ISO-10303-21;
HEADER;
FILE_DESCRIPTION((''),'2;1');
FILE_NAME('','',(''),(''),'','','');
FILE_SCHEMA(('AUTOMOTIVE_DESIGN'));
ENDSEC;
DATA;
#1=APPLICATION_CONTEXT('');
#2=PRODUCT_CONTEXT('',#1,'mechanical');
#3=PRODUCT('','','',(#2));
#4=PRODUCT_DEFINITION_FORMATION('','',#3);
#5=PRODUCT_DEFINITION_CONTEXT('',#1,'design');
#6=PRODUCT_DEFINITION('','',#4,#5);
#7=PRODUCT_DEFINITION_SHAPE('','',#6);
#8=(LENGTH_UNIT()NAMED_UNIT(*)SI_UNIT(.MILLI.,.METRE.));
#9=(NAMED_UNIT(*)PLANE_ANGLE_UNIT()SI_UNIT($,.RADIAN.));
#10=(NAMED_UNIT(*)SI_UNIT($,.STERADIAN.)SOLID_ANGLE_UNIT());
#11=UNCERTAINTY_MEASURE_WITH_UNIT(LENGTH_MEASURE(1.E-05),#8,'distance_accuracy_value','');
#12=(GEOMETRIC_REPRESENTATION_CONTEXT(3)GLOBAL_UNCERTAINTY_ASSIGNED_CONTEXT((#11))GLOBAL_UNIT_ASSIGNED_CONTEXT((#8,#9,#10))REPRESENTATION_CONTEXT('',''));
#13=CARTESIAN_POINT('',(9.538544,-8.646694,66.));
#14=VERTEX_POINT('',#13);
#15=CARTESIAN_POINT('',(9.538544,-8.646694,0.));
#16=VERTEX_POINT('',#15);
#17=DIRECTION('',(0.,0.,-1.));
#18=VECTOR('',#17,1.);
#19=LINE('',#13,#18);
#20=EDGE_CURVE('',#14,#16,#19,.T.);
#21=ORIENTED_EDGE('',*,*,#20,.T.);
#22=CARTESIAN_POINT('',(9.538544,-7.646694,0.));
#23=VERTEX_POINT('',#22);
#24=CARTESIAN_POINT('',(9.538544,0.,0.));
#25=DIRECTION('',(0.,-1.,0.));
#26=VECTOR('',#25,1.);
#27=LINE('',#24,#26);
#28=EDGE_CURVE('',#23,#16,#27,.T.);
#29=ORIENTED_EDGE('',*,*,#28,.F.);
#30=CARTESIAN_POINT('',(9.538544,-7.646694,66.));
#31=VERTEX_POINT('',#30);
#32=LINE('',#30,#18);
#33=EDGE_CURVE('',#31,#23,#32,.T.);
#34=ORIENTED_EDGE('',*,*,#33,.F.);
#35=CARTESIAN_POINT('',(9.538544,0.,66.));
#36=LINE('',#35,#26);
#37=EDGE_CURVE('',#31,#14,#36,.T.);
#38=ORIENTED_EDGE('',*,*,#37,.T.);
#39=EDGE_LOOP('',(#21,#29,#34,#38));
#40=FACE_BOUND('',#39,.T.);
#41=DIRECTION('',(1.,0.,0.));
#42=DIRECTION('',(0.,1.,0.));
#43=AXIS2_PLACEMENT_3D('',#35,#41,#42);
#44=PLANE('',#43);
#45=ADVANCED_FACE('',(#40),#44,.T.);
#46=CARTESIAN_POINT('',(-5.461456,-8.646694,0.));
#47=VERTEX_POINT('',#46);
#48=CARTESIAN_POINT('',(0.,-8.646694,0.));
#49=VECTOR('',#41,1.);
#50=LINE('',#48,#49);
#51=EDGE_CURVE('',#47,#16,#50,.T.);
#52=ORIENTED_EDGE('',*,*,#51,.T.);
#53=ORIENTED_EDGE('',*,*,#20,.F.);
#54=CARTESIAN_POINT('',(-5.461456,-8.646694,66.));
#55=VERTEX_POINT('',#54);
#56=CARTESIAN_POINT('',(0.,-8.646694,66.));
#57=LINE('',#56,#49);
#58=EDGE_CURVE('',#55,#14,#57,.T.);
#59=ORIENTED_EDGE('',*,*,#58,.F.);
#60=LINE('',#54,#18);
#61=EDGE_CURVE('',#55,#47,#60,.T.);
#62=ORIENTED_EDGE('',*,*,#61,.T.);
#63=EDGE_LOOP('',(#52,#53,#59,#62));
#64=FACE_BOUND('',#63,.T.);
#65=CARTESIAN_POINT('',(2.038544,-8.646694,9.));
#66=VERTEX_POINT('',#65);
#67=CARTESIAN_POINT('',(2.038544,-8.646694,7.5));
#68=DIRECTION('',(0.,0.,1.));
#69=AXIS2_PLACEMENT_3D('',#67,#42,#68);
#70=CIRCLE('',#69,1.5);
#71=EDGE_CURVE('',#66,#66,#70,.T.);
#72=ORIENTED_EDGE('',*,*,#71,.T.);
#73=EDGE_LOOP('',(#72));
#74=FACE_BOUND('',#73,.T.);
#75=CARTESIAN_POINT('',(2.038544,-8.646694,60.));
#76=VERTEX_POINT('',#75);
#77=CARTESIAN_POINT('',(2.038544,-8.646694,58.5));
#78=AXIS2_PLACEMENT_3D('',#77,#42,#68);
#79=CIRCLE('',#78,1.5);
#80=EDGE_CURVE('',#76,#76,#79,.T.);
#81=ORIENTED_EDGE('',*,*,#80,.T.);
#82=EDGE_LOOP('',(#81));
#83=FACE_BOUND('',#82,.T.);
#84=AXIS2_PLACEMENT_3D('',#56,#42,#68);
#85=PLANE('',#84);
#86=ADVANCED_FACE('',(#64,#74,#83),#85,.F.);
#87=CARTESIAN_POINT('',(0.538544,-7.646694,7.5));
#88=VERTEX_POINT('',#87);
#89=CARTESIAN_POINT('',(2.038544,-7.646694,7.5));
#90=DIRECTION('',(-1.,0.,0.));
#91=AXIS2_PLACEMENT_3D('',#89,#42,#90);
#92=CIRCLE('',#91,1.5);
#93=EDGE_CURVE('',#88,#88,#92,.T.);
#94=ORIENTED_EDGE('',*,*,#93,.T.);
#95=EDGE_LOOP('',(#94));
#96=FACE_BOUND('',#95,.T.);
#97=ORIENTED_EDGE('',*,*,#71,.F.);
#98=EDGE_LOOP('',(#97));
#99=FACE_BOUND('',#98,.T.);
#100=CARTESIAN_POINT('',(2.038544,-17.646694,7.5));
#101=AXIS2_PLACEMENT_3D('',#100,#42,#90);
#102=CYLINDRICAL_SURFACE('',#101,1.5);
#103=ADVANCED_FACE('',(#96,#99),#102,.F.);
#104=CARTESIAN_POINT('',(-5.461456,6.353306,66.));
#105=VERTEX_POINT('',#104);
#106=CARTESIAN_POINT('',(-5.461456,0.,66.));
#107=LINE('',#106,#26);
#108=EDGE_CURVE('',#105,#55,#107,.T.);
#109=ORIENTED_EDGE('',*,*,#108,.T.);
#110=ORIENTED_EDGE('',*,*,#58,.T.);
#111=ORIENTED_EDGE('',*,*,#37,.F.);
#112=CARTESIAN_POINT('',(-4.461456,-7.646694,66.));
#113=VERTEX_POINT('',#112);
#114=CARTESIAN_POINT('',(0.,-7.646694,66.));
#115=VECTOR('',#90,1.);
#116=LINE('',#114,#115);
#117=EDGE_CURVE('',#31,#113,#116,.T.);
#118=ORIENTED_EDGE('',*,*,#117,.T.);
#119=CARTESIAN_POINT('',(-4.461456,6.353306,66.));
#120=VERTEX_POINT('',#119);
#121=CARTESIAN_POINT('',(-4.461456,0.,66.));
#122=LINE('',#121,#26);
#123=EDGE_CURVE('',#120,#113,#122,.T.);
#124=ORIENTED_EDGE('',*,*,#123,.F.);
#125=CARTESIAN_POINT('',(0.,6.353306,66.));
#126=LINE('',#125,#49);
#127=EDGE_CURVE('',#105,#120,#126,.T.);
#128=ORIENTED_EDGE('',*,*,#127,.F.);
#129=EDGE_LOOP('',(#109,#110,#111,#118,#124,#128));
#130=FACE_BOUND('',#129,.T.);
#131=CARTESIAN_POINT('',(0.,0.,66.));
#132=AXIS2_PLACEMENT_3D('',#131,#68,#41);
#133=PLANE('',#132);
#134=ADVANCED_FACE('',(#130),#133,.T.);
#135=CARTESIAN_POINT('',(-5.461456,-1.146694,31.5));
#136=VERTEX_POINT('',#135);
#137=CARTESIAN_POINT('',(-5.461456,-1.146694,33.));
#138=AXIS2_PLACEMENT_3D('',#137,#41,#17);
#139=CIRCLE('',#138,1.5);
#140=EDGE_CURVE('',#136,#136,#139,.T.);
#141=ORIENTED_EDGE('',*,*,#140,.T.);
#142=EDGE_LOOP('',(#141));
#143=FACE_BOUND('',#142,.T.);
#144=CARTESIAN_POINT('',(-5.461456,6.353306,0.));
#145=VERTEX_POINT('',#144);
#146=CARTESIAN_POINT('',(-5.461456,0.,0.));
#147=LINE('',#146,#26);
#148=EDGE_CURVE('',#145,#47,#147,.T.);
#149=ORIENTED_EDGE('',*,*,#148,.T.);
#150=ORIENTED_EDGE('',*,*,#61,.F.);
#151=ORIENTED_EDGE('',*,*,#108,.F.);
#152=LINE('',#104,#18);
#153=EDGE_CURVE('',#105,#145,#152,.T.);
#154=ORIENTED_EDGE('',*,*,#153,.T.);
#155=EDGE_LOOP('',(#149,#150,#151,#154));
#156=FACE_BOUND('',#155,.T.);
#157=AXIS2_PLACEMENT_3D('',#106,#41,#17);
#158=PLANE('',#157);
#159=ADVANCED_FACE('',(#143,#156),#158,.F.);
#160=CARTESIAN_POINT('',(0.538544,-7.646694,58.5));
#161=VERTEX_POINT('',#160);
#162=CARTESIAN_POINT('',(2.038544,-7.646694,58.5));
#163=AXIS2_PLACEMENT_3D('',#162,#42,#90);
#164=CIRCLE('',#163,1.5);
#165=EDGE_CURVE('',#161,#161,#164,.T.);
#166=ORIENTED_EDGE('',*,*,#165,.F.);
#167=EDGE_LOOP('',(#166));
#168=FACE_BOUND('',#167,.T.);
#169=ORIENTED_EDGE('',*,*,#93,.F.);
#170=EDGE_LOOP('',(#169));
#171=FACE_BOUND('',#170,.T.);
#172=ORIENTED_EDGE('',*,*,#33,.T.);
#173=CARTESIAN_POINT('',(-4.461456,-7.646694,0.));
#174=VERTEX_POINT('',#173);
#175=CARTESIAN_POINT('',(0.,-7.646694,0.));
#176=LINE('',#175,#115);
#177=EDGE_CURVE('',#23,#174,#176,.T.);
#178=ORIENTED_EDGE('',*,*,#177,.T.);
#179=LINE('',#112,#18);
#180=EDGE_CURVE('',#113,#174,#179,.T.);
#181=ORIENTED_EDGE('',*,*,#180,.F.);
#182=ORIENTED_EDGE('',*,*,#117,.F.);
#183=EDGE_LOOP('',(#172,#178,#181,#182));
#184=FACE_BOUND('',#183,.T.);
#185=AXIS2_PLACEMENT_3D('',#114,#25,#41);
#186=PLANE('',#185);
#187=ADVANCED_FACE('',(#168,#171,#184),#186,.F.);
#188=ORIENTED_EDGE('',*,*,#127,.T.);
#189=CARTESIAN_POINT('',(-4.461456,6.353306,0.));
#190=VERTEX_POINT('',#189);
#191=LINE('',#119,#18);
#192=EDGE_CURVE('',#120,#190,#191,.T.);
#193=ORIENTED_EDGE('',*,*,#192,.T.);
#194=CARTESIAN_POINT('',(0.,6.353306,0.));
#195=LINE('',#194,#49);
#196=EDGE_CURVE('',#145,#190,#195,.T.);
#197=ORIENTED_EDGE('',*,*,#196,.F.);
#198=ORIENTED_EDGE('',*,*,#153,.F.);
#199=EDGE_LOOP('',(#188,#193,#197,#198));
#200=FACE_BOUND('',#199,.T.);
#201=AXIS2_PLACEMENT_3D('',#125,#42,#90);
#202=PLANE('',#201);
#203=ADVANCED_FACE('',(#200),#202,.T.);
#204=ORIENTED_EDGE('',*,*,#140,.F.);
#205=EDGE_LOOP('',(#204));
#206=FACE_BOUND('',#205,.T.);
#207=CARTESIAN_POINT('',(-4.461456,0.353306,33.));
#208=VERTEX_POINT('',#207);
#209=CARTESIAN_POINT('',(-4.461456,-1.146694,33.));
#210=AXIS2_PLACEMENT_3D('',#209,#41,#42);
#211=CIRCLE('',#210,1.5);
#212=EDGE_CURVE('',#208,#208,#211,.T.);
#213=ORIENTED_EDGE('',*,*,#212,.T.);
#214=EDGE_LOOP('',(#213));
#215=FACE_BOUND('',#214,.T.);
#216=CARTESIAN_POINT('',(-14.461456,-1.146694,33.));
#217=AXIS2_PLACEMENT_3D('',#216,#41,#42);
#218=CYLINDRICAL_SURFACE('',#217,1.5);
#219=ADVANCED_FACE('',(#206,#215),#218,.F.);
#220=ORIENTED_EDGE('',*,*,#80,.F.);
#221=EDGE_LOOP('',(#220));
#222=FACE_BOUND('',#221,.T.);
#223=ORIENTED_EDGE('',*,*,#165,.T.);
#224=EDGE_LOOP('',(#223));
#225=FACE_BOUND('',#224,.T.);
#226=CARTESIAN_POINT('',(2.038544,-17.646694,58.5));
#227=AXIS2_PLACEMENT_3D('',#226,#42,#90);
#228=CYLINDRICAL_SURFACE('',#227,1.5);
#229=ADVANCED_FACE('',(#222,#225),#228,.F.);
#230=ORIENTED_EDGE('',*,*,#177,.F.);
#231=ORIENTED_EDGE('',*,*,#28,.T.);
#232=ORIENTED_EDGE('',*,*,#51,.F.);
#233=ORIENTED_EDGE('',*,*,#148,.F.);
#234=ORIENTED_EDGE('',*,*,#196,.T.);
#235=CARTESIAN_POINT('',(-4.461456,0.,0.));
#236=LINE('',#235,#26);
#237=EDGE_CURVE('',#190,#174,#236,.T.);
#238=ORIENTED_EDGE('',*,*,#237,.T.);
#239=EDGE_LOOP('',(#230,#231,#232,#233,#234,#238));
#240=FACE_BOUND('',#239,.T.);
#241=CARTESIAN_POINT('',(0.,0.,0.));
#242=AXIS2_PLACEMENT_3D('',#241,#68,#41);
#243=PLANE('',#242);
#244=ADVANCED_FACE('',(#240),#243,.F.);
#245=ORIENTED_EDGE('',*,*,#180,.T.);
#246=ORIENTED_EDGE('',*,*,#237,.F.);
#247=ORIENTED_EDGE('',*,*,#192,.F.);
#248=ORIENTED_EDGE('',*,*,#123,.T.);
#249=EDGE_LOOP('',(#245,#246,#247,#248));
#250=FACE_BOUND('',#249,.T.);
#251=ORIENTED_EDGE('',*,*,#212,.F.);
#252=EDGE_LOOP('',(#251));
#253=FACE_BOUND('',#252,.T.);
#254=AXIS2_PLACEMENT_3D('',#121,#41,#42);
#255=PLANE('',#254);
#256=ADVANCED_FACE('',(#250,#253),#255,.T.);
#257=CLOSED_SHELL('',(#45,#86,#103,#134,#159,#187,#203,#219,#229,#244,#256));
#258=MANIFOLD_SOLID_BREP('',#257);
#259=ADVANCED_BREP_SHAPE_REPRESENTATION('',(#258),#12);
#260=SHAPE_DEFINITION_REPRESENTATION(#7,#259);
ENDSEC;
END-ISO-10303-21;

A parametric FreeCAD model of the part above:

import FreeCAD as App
import Part
import Sketcher


def add_polygon(sketch, points):
    """Adds a closed chain of lines whose ends are joined by coincident constraints."""
    first, n = sketch.GeometryCount, len(points)
    for a, b in zip(points, points[1:] + points[:1]):
        sketch.addGeometry(Part.LineSegment(App.Vector(*a, 0), App.Vector(*b, 0)), False)
    for i in range(n):
        sketch.addConstraint(Sketcher.Constraint("Coincident", first + i, 2, first + (i + 1) % n, 1))

doc = App.newDocument("Part")
params = doc.addObject("Spreadsheet::Sheet", "Params")
for row, (alias, value) in enumerate([
    ("sketch1_width", "1 mm"),
    ("sketch1_width2", "15 mm"),
    ("pad1_length", "66 mm"),
    ("sketch2_diameter", "3 mm"),
    ("pocket1_length", "10 mm"),
    ("sketch3_diameter", "3 mm"),
    ("pocket2_length", "10 mm"),
    ("sketch4_diameter", "3 mm"),
    ("pocket3_length", "10 mm"),
], start=1):
    params.set(f"A{row}", alias)
    params.set(f"B{row}", "=" + value)
    params.setAlias(f"B{row}", alias)

body = doc.addObject("PartDesign::Body", "Body")

# Sketch on XY plane
sketch1 = doc.addObject("Sketcher::SketchObject", "Sketch")
body.addObject(sketch1)
sketch1.AttachmentSupport = (doc.XY_Plane, [""])
sketch1.MapMode = "FlatFace"
add_polygon(sketch1, [(-4.461456, 6.353306), (-5.461456, 6.353306), (-5.461456, -8.646694), (9.538544, -8.646694), (9.538544, -7.646694), (-4.461456, -7.646694)])  # lines 0-5
sketch1.addConstraint([
    Sketcher.Constraint("Horizontal", 0),
    Sketcher.Constraint("Vertical", 1),
    Sketcher.Constraint("Horizontal", 2),
    Sketcher.Constraint("Vertical", 3),
    Sketcher.Constraint("Horizontal", 4),
    Sketcher.Constraint("Vertical", 5),
    Sketcher.Constraint("Equal", 2, 1),
    Sketcher.Constraint("Equal", 0, 3),
    Sketcher.Constraint("DistanceX", 0, 2, 0, 1, 1.0),
    Sketcher.Constraint("DistanceX", 2, 1, 2, 2, 15.0),
    Sketcher.Constraint("DistanceX", 0, 2, -1, 1, 5.461456),
    Sketcher.Constraint("DistanceY", -1, 1, 0, 2, 6.353306),
])
sketch1.setExpression("Constraints[14]", "Params.sketch1_width")
sketch1.setExpression("Constraints[15]", "Params.sketch1_width2")
pad1 = doc.addObject("PartDesign::Pad", "Pad")
body.addObject(pad1)
pad1.Profile = sketch1
pad1.setExpression("Length", "Params.pad1_length")

# Sketch on YZ plane
sketch2 = doc.addObject("Sketcher::SketchObject", "Sketch001")
body.addObject(sketch2)
sketch2.AttachmentSupport = (doc.YZ_Plane, [""])
sketch2.MapMode = "FlatFace"
sketch2.AttachmentOffset = App.Placement(App.Vector(0, 0, -4.461456), App.Rotation())
sketch2.addGeometry(Part.Circle(App.Vector(-1.146694, 33, 0), App.Vector(0, 0, 1), 1.5), False)
sketch2.addConstraint([
    Sketcher.Constraint("Diameter", 0, 3.0),
    Sketcher.Constraint("DistanceY", -1, 1, 0, 3, 33.0),
    Sketcher.Constraint("DistanceX", 0, 3, -1, 1, 1.146694),
])
sketch2.setExpression("Constraints[0]", "Params.sketch2_diameter")
pocket1 = doc.addObject("PartDesign::Pocket", "Pocket")
body.addObject(pocket1)
pocket1.Profile = sketch2
pocket1.setExpression("Length", "Params.pocket1_length")

# Sketch on XZ plane
sketch3 = doc.addObject("Sketcher::SketchObject", "Sketch002")
body.addObject(sketch3)
sketch3.AttachmentSupport = (doc.XZ_Plane, [""])
sketch3.MapMode = "FlatFace"
sketch3.AttachmentOffset = App.Placement(App.Vector(0, 0, 7.646694), App.Rotation())
sketch3.addGeometry(Part.Circle(App.Vector(2.038544, 7.5, 0), App.Vector(0, 0, 1), 1.5), False)
sketch3.addConstraint([
    Sketcher.Constraint("Diameter", 0, 3.0),
    Sketcher.Constraint("DistanceY", -1, 1, 0, 3, 7.5),
    Sketcher.Constraint("DistanceX", -1, 1, 0, 3, 2.038544),
])
sketch3.setExpression("Constraints[0]", "Params.sketch3_diameter")
pocket2 = doc.addObject("PartDesign::Pocket", "Pocket001")
body.addObject(pocket2)
pocket2.Profile = sketch3
pocket2.setExpression("Length", "Params.pocket2_length")
pocket2.Reversed = True

# Sketch on XZ plane
sketch4 = doc.addObject("Sketcher::SketchObject", "Sketch003")
body.addObject(sketch4)
sketch4.AttachmentSupport = (doc.XZ_Plane, [""])
sketch4.MapMode = "FlatFace"
sketch4.AttachmentOffset = App.Placement(App.Vector(0, 0, 7.646694), App.Rotation())
sketch4.addGeometry(Part.Circle(App.Vector(2.038544, 58.5, 0), App.Vector(0, 0, 1), 1.5), False)
sketch4.addConstraint([
    Sketcher.Constraint("Diameter", 0, 3.0),
    Sketcher.Constraint("DistanceY", -1, 1, 0, 3, 58.5),
    Sketcher.Constraint("DistanceX", -1, 1, 0, 3, 2.038544),
])
sketch4.setExpression("Constraints[0]", "Params.sketch4_diameter")
pocket3 = doc.addObject("PartDesign::Pocket", "Pocket002")
body.addObject(pocket3)
pocket3.Profile = sketch4
pocket3.setExpression("Length", "Params.pocket3_length")
pocket3.Reversed = True

doc.recompute()
